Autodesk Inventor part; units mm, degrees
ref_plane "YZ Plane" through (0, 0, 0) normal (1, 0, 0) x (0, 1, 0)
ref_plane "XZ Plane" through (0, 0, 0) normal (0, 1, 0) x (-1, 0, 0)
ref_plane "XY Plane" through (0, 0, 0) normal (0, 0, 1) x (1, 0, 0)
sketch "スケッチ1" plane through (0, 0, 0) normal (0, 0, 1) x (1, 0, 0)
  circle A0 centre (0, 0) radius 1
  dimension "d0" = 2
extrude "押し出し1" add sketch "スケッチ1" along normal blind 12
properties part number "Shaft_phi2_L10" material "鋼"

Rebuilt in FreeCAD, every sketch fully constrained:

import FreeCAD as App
import Part
import Sketcher
Q = App.Units.Quantity

doc = App.newDocument("Part")
params = doc.addObject("Spreadsheet::Sheet", "Params")
for row, (alias, value) in enumerate([
    ("sketch1_diameter", "2 mm"),
    ("pad1_length", "12 mm"),
], start=1):
    params.set(f"A{row}", alias)
    params.set(f"B{row}", "=" + value)
    params.setAlias(f"B{row}", alias)

body = doc.addObject("PartDesign::Body", "Body")

# Sketch on XY plane
sketch1 = body.newObject("Sketcher::SketchObject", "Sketch")
sketch1.AttachmentSupport = (doc.getObject("XY_Plane"), [""])
sketch1.MapMode = "FlatFace"
sketch1.addGeometry(Part.Circle(App.Vector(0, 0, 0), App.Vector(0, 0, 1), 1), False)
sketch1.addConstraint([
    Sketcher.Constraint("Coincident", 0, 3, -1, 1),
    Sketcher.Constraint("Diameter", 0, Q("2 mm")),
])
sketch1.setExpression("Constraints[1]", "Params.sketch1_diameter")
pad1 = body.newObject("PartDesign::Pad", "Pad")
pad1.Profile = sketch1
pad1.setExpression("Length", "Params.pad1_length")

doc.recompute()
